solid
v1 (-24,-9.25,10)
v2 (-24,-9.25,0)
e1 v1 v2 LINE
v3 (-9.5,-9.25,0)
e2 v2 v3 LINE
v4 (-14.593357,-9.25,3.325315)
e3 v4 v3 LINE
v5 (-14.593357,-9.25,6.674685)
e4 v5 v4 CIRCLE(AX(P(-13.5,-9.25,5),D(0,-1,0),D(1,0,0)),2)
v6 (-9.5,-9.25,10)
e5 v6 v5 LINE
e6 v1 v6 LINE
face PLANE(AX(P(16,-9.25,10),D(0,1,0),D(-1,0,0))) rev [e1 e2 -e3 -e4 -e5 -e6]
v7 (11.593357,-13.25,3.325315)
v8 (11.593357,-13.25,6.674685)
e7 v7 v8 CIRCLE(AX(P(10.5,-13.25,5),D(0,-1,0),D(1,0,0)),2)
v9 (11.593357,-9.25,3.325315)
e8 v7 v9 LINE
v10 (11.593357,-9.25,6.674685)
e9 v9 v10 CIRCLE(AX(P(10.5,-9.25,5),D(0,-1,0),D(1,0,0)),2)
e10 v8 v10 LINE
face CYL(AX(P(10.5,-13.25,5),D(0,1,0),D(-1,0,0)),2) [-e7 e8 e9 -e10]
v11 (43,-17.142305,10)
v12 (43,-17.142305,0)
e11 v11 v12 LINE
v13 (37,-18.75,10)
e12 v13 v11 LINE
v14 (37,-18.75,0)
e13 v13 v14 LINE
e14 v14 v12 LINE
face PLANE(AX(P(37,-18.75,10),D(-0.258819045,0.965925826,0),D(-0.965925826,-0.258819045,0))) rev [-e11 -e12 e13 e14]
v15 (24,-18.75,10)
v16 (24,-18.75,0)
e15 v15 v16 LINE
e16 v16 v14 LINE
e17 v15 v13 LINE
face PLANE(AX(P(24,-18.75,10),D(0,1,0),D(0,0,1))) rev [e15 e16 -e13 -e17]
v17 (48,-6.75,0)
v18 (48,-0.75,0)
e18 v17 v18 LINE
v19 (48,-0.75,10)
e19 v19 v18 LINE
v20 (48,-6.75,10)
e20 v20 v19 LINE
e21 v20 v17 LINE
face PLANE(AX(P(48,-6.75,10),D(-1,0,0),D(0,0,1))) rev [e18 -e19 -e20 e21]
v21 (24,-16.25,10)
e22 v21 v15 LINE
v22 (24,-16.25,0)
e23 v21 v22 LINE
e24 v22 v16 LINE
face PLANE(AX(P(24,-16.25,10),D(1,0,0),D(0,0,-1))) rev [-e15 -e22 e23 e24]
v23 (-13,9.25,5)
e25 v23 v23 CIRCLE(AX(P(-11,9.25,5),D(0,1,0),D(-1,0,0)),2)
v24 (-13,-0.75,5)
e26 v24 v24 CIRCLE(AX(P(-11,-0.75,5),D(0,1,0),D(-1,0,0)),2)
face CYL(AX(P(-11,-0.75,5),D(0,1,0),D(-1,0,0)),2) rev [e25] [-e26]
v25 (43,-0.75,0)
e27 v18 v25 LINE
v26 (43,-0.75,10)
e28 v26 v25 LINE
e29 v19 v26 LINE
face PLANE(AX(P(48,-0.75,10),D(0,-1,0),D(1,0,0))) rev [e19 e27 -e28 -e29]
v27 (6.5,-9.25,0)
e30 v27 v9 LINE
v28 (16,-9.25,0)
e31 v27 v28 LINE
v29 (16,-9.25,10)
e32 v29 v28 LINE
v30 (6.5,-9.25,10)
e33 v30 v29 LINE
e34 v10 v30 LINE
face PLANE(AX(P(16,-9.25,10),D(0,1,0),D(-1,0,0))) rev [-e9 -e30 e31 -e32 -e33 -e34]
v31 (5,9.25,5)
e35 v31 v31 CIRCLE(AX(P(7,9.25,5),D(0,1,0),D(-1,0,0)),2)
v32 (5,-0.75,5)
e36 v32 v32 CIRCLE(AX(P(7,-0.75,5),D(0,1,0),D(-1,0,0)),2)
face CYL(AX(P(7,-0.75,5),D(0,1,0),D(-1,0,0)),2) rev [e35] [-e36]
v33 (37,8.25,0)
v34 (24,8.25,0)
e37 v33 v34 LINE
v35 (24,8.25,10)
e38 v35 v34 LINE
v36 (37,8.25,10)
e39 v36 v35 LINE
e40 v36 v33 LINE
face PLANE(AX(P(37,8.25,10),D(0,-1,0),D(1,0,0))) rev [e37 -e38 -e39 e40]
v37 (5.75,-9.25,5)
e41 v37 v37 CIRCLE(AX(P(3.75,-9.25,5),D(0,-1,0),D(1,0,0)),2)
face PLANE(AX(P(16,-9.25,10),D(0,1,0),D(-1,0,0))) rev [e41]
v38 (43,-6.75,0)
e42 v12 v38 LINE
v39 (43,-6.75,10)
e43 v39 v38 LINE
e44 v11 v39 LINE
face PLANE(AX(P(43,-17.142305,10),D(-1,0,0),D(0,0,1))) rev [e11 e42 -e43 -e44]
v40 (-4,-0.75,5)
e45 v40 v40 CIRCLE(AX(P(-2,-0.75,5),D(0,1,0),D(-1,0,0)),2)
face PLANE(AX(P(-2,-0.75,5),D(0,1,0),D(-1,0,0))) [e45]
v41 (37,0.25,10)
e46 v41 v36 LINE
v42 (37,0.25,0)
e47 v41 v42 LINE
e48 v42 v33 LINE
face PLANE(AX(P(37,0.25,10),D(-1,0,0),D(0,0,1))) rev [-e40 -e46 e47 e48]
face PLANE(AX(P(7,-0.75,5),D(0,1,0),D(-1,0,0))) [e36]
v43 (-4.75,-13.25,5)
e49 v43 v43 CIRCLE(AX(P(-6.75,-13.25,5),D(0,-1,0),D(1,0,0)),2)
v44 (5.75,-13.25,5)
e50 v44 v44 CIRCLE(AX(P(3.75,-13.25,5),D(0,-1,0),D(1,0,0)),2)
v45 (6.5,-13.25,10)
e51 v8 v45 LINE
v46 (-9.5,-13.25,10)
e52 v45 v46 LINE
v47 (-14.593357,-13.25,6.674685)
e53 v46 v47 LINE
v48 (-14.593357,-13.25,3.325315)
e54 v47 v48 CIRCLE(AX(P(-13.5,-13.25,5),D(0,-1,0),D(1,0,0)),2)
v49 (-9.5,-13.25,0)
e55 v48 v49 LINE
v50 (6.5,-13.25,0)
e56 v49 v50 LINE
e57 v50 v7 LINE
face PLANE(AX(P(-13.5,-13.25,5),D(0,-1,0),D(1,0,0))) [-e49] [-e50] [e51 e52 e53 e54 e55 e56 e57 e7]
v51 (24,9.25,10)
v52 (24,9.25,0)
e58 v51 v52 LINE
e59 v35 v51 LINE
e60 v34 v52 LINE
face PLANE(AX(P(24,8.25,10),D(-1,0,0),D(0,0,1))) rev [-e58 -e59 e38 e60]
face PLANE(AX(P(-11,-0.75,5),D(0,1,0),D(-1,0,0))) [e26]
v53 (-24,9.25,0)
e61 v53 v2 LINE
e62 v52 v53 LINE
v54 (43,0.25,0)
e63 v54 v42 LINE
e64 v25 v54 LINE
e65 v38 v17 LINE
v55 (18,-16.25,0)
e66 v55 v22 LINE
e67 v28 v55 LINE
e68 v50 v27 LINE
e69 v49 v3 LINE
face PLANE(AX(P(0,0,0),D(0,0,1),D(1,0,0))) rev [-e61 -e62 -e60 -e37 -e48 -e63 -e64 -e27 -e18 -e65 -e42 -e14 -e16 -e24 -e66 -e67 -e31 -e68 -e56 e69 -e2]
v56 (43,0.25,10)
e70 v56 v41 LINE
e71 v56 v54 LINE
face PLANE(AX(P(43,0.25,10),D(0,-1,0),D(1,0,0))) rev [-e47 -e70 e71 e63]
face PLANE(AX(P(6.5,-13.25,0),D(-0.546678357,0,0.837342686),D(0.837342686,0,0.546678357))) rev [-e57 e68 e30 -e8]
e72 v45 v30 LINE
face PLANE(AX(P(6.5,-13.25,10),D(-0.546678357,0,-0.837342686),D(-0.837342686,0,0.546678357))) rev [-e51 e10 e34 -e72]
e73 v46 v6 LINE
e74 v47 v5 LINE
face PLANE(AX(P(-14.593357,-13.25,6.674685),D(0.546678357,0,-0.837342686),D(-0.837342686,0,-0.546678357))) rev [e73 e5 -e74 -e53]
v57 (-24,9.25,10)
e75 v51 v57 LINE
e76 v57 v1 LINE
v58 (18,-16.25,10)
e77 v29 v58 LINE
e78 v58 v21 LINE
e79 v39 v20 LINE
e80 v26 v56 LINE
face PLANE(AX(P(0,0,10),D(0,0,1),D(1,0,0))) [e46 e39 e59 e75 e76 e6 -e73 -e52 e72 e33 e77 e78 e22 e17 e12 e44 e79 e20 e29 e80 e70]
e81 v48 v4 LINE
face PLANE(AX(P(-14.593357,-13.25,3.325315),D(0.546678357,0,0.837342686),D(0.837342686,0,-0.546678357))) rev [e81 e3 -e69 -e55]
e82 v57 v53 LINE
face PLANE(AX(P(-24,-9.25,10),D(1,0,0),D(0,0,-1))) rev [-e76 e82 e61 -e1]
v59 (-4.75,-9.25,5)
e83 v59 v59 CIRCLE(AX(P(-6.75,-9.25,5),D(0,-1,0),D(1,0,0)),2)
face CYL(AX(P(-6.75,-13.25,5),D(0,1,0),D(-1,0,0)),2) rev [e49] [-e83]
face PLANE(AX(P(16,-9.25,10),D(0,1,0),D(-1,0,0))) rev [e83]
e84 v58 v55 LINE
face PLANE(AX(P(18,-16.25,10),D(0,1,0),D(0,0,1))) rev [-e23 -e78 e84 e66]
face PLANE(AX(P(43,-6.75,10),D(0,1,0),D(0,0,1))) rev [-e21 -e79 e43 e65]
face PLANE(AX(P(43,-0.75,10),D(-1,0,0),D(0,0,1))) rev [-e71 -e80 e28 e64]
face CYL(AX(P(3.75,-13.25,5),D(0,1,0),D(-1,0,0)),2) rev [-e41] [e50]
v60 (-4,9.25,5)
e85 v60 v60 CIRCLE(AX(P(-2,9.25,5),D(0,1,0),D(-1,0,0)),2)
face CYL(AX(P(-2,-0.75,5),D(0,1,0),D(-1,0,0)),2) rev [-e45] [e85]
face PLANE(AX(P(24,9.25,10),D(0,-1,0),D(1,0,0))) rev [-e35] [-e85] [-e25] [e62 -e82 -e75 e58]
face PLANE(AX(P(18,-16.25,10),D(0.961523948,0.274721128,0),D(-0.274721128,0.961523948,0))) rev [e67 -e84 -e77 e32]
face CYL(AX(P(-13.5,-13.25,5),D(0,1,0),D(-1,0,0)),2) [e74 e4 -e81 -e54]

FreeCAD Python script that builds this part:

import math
import FreeCAD as App
import Part
import Sketcher
from FreeCAD import Vector
Q = App.Units.Quantity


def add_polygon(sketch, points):
    """Adds a closed chain of lines whose ends are joined by coincident constraints."""
    first, n = sketch.GeometryCount, len(points)
    for a, b in zip(points, points[1:] + points[:1]):
        sketch.addGeometry(Part.LineSegment(App.Vector(*a, 0), App.Vector(*b, 0)), False)
    for i in range(n):
        sketch.addConstraint(Sketcher.Constraint("Coincident", first + i, 2, first + (i + 1) % n, 1))

doc = App.newDocument("Part")
body = doc.addObject("PartDesign::Body", "Body")

sketch1 = body.newObject("Sketcher::SketchObject", "Sketch")
sketch1.AttachmentSupport = (doc.getObject("XY_Plane"), [""])
sketch1.MapMode = "FlatFace"
add_polygon(sketch1, [(16, -9.25), (18, -16.25), (24, -16.25), (24, -18.75), (37, -18.75), (43, -17.142305), (43, -6.75), (48, -6.75), (48, -0.75), (43, -0.75), (43, 0.25), (37, 0.25), (37, 8.25), (24, 8.25), (24, 9.25), (-24, 9.25), (-24, -9.25)])
sketch1.addConstraint([
    Sketcher.Constraint("Horizontal", 1),
    Sketcher.Constraint("Vertical", 2),
    Sketcher.Constraint("Horizontal", 3),
    Sketcher.Constraint("Vertical", 5),
    Sketcher.Constraint("Horizontal", 6),
    Sketcher.Constraint("Vertical", 7),
    Sketcher.Constraint("Horizontal", 8),
    Sketcher.Constraint("Vertical", 9),
    Sketcher.Constraint("Horizontal", 10),
    Sketcher.Constraint("Vertical", 11),
    Sketcher.Constraint("Horizontal", 12),
    Sketcher.Constraint("Vertical", 13),
    Sketcher.Constraint("Horizontal", 14),
    Sketcher.Constraint("Vertical", 15),
    Sketcher.Constraint("Horizontal", 16),
    Sketcher.Constraint("Symmetric", 13, 2, 15, 2, -1, 1),
    Sketcher.Constraint("Vertical", 5, 2, 8, 2),
    Sketcher.Constraint("Vertical", 3, 2, 10, 2),
    Sketcher.Constraint("Vertical", 2, 2, 12, 2),
    Sketcher.Constraint("Equal", 1, 10),
    Sketcher.Constraint("Equal", 10, 7),
    Sketcher.Constraint("Equal", 9, 13),
    Sketcher.Constraint("DistanceX", 1, 1, 1, 2, Q("6 mm")),
    Sketcher.Constraint("DistanceX", 3, 1, 3, 2, Q("13 mm")),
    Sketcher.Constraint("DistanceX", 6, 1, 6, 2, Q("5 mm")),
    Sketcher.Constraint("DistanceX", 14, 2, 14, 1, Q("48 mm")),
    Sketcher.Constraint("DistanceX", 16, 1, 16, 2, Q("40 mm")),
    Sketcher.Constraint("DistanceY", 9, 1, 9, 2, Q("1 mm")),
    Sketcher.Constraint("DistanceY", 11, 1, 11, 2, Q("8 mm")),
    Sketcher.Constraint("Angle", 4, Q("15 deg")),
    Sketcher.Constraint("DistanceY", 2, 2, 2, 1, Q("2.5 mm")),
    Sketcher.Constraint("DistanceY", 15, 2, 15, 1, Q("18.5 mm")),
    Sketcher.Constraint("DistanceY", 3, 2, 5, 2, Q("12 mm")),
])
pad1 = body.newObject("PartDesign::Pad", "Pad")
pad1.Profile = sketch1
pad1.Length = 10

sketch2 = body.newObject("Sketcher::SketchObject", "Sketch001")
sketch2.AttachmentSupport = (doc.getObject("XZ_Plane"), [""])
sketch2.MapMode = "FlatFace"
sketch2.AttachmentOffset = App.Placement(Vector(0, 0, 9.25), App.Rotation())
sketch2.addGeometry([
    Part.LineSegment(Vector(-9.5, 10, 0), Vector(-14.593357, 6.674685, 0)),
    Part.ArcOfCircle(Part.Circle(Vector(-13.5, 5, 0), Vector(0, 0, 1), 2), math.radians(123.139432), math.radians(236.860568)),
    Part.LineSegment(Vector(-14.593357, 3.325315, 0), Vector(-9.5, 0, 0)),
    Part.LineSegment(Vector(-9.5, 0, 0), Vector(6.5, 0, 0)),
    Part.LineSegment(Vector(6.5, 0, 0), Vector(11.593357, 3.325315, 0)),
    Part.ArcOfCircle(Part.Circle(Vector(10.5, 5, 0), Vector(0, 0, 1), 2), math.radians(-56.860568), math.radians(56.860568)),
    Part.LineSegment(Vector(11.593357, 6.674685, 0), Vector(6.5, 10, 0)),
    Part.LineSegment(Vector(6.5, 10, 0), Vector(-9.5, 10, 0)),
    Part.Circle(Vector(3.75, 5, 0), Vector(0, 0, 1), 2),
    Part.Circle(Vector(-6.75, 5, 0), Vector(0, 0, 1), 2),
], False)
sketch2.addConstraint([
    Sketcher.Constraint("Tangent", 0, 2, 1, 1),
    Sketcher.Constraint("Tangent", 1, 2, 2, 1),
    Sketcher.Constraint("Coincident", 2, 2, 3, 1),
    Sketcher.Constraint("Coincident", 3, 2, 4, 1),
    Sketcher.Constraint("Tangent", 4, 2, 5, 1),
    Sketcher.Constraint("Tangent", 5, 2, 6, 1),
    Sketcher.Constraint("Coincident", 6, 2, 7, 1),
    Sketcher.Constraint("Coincident", 7, 2, 0, 1),
    Sketcher.Constraint("Horizontal", 3),
    Sketcher.Constraint("Horizontal", 7),
    Sketcher.Constraint("Equal", 1, 5),
    Sketcher.Constraint("Equal", 5, 8),
    Sketcher.Constraint("Equal", 8, 9),
    Sketcher.Constraint("PointOnObject", 2, 2, -1),
    Sketcher.Constraint("Parallel", 0, 4),
    Sketcher.Constraint("Parallel", 2, 6),
    Sketcher.Constraint("Horizontal", 1, 3, 5, 3),
    Sketcher.Constraint("Horizontal", 5, 3, 8, 3),
    Sketcher.Constraint("Horizontal", 8, 3, 9, 3),
    Sketcher.Constraint("Horizontal", 1, 2, 4, 2),
    Sketcher.Constraint("Vertical", 3, 2, 6, 2),
    Sketcher.Constraint("Diameter", 8, Q("4 mm")),
    Sketcher.Constraint("DistanceX", 3, 1, 3, 2, Q("16 mm")),
    Sketcher.Constraint("DistanceY", -1, 1, 1, 3, Q("5 mm")),
    Sketcher.Constraint("DistanceX", 1, 3, 5, 3, Q("24 mm")),
    Sketcher.Constraint("DistanceX", 1, 3, -1, 1, Q("13.5 mm")),
    Sketcher.Constraint("DistanceX", 9, 3, 8, 3, Q("10.5 mm")),
    Sketcher.Constraint("DistanceX", -1, 1, 8, 3, Q("3.75 mm")),
])
pad2 = body.newObject("PartDesign::Pad", "Pad001")
pad2.Profile = sketch2
pad2.Length = 4

sketch3 = body.newObject("Sketcher::SketchObject", "Sketch002")
sketch3.AttachmentSupport = (doc.getObject("XZ_Plane"), [""])
sketch3.MapMode = "FlatFace"
sketch3.AttachmentOffset = App.Placement(Vector(0, 0, -9.25), App.Rotation())
sketch3.addGeometry([
    Part.Circle(Vector(-2, 5, 0), Vector(0, 0, 1), 2),
    Part.Circle(Vector(-11, 5, 0), Vector(0, 0, 1), 2),
    Part.Circle(Vector(7, 5, 0), Vector(0, 0, 1), 2),
], False)
sketch3.addConstraint([
    Sketcher.Constraint("Equal", 0, 1),
    Sketcher.Constraint("Equal", 1, 2),
    Sketcher.Constraint("Horizontal", 0, 3, 1, 3),
    Sketcher.Constraint("Horizontal", 1, 3, 2, 3),
    Sketcher.Constraint("Diameter", 0, Q("4 mm")),
    Sketcher.Constraint("DistanceX", 0, 3, -1, 1, Q("2 mm")),
    Sketcher.Constraint("DistanceY", -1, 1, 0, 3, Q("5 mm")),
    Sketcher.Constraint("DistanceX", 1, 3, -1, 1, Q("11 mm")),
    Sketcher.Constraint("DistanceX", -1, 1, 2, 3, Q("7 mm")),
])
pocket1 = body.newObject("PartDesign::Pocket", "Pocket")
pocket1.Profile = sketch3
pocket1.Length = 10
pocket1.Reversed = True

doc.recompute()
